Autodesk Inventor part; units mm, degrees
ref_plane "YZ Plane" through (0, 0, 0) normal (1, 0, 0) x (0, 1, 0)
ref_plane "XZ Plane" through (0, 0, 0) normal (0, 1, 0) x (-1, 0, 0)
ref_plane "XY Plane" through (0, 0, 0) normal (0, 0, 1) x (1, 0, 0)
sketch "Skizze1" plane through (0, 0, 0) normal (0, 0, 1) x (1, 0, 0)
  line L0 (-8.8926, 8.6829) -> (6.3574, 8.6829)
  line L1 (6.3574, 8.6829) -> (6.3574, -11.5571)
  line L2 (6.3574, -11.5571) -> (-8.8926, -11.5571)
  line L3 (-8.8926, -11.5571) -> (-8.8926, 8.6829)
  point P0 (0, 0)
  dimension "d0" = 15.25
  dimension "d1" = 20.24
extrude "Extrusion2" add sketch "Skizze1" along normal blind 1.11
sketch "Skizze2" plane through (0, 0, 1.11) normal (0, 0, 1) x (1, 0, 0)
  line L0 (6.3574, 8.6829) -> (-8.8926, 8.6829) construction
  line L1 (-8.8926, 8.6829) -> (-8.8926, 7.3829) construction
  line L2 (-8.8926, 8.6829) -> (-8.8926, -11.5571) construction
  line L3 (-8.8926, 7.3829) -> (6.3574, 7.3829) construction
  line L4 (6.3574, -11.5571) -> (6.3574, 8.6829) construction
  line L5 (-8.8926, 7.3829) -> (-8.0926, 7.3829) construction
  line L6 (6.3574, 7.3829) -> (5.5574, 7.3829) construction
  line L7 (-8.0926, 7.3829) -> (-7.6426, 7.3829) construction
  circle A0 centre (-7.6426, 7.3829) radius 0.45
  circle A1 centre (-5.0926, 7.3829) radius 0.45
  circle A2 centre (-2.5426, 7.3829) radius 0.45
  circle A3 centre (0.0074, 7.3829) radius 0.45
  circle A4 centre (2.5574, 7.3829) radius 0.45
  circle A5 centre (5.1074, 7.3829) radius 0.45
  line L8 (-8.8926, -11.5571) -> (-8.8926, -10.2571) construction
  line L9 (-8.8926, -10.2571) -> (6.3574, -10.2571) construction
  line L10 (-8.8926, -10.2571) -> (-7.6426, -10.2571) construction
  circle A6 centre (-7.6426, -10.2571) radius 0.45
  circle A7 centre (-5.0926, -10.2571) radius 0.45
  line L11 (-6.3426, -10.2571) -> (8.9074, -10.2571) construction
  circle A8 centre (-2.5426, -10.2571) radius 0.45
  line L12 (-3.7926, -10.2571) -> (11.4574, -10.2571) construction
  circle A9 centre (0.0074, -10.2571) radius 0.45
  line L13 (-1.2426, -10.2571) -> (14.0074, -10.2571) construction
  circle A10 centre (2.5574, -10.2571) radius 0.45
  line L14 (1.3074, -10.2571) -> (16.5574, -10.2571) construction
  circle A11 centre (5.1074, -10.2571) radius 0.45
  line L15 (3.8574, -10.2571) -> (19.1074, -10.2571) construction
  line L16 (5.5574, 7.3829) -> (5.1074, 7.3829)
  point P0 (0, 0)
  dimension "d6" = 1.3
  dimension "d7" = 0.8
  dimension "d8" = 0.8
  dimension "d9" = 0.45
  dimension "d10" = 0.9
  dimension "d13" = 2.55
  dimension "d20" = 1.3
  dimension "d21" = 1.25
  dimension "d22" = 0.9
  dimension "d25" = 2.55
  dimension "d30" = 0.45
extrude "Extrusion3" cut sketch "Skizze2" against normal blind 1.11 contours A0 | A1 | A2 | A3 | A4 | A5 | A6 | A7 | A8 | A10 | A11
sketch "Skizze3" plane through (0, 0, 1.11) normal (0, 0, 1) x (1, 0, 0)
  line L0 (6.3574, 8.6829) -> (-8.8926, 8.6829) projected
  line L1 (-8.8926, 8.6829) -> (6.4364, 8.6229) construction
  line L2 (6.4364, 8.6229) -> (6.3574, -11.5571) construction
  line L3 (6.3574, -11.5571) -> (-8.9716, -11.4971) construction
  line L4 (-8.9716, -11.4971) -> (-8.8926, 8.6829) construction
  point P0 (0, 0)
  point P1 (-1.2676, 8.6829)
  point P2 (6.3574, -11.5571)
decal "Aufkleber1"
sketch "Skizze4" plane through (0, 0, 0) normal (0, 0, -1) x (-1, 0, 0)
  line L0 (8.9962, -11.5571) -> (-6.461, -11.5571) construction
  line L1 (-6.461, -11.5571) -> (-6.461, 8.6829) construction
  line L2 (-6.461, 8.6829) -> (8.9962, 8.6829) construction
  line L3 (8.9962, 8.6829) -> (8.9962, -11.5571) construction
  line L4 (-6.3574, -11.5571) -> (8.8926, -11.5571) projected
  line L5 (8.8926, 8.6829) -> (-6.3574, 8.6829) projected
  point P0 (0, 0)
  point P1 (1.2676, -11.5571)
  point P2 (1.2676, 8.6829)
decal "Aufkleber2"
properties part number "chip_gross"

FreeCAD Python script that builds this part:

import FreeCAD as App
import Part
import Sketcher

V = App.Vector
Q = App.Units.Quantity

doc = App.newDocument("Part")
params = doc.addObject("Spreadsheet::Sheet", "Params")
for row, (alias, value) in enumerate([
    ("sketch1_width", "15.25 mm"),
    ("sketch1_height", "20.24 mm"),
    ("pad1_length", "1.11 mm"),
    ("sketch2_diameter", "0.9 mm"),
    ("pocket1_length", "1.11 mm"),
], start=1):
    params.set(f"A{row}", alias)
    params.set(f"B{row}", "=" + value)
    params.setAlias(f"B{row}", alias)

body = doc.addObject("PartDesign::Body", "Body")

sketch1 = body.newObject("Sketcher::SketchObject", "Sketch")
sketch1.AttachmentSupport = (doc.getObject("XY_Plane"), [""])
sketch1.MapMode = "FlatFace"
sketch1.addGeometry(Part.LineSegment(V(6, 9, 0), V(-9, 9, 0)), False)
sketch1.addGeometry(Part.LineSegment(V(-9, 9, 0), V(-9, -12, 0)), False)
sketch1.addGeometry(Part.LineSegment(V(-9, -12, 0), V(6, -12, 0)), False)
sketch1.addGeometry(Part.LineSegment(V(6, -12, 0), V(6, 9, 0)), False)
sketch1.addConstraint(Sketcher.Constraint("Coincident", 0, 2, 1, 1))
sketch1.addConstraint(Sketcher.Constraint("Coincident", 1, 2, 2, 1))
sketch1.addConstraint(Sketcher.Constraint("Coincident", 2, 2, 3, 1))
sketch1.addConstraint(Sketcher.Constraint("Coincident", 3, 2, 0, 1))
sketch1.addConstraint(Sketcher.Constraint("Horizontal", 0))
sketch1.addConstraint(Sketcher.Constraint("Vertical", 1))
sketch1.addConstraint(Sketcher.Constraint("Horizontal", 2))
sketch1.addConstraint(Sketcher.Constraint("Vertical", 3))
sketch1.addConstraint(Sketcher.Constraint("DistanceX", 0, 2, 0, 1, Q("15.25 mm")))
sketch1.addConstraint(Sketcher.Constraint("DistanceY", 1, 2, 1, 1, Q("20.24 mm")))
sketch1.addConstraint(Sketcher.Constraint("DistanceY", -1, 1, 0, 2, Q("8.683 mm")))
sketch1.addConstraint(Sketcher.Constraint("DistanceX", 0, 2, -1, 1, Q("8.8926 mm")))
sketch1.setExpression("Constraints[8]", "Params.sketch1_width")
sketch1.setExpression("Constraints[9]", "Params.sketch1_height")
pad1 = body.newObject("PartDesign::Pad", "Pad")
pad1.Profile = sketch1
pad1.setExpression("Length", "Params.pad1_length")

sketch2 = body.newObject("Sketcher::SketchObject", "Sketch001")
sketch2.AttachmentSupport = (doc.getObject("XY_Plane"), [""])
sketch2.MapMode = "FlatFace"
sketch2.AttachmentOffset = App.Placement(V(0, 0, 1.11), App.Rotation())
sketch2.addGeometry(Part.Circle(V(-7.64, 7.38, 0), V(0, 0, 1), 0.45), False)
sketch2.addGeometry(Part.Circle(V(-5.09, 7.38, 0), V(0, 0, 1), 0.45), False)
sketch2.addGeometry(Part.Circle(V(-2.54, 7.38, 0), V(0, 0, 1), 0.45), False)
sketch2.addGeometry(Part.Circle(V(0.01, 7.38, 0), V(0, 0, 1), 0.45), False)
sketch2.addGeometry(Part.Circle(V(2.56, 7.38, 0), V(0, 0, 1), 0.45), False)
sketch2.addGeometry(Part.Circle(V(5.11, 7.38, 0), V(0, 0, 1), 0.45), False)
sketch2.addGeometry(Part.Circle(V(-7.64, -10.26, 0), V(0, 0, 1), 0.45), False)
sketch2.addGeometry(Part.Circle(V(-5.09, -10.26, 0), V(0, 0, 1), 0.45), False)
sketch2.addGeometry(Part.Circle(V(-2.54, -10.26, 0), V(0, 0, 1), 0.45), False)
sketch2.addGeometry(Part.Circle(V(2.56, -10.26, 0), V(0, 0, 1), 0.45), False)
sketch2.addGeometry(Part.Circle(V(5.11, -10.26, 0), V(0, 0, 1), 0.45), False)
sketch2.addConstraint(Sketcher.Constraint("Equal", 0, 1))
sketch2.addConstraint(Sketcher.Constraint("Equal", 1, 2))
sketch2.addConstraint(Sketcher.Constraint("Equal", 2, 3))
sketch2.addConstraint(Sketcher.Constraint("Equal", 3, 4))
sketch2.addConstraint(Sketcher.Constraint("Equal", 4, 5))
sketch2.addConstraint(Sketcher.Constraint("Equal", 5, 6))
sketch2.addConstraint(Sketcher.Constraint("Equal", 6, 7))
sketch2.addConstraint(Sketcher.Constraint("Equal", 7, 8))
sketch2.addConstraint(Sketcher.Constraint("Equal", 8, 9))
sketch2.addConstraint(Sketcher.Constraint("Equal", 9, 10))
sketch2.addConstraint(Sketcher.Constraint("Horizontal", 0, 3, 1, 3))
sketch2.addConstraint(Sketcher.Constraint("Horizontal", 1, 3, 2, 3))
sketch2.addConstraint(Sketcher.Constraint("Horizontal", 2, 3, 3, 3))
sketch2.addConstraint(Sketcher.Constraint("Horizontal", 3, 3, 4, 3))
sketch2.addConstraint(Sketcher.Constraint("Horizontal", 4, 3, 5, 3))
sketch2.addConstraint(Sketcher.Constraint("Horizontal", 6, 3, 7, 3))
sketch2.addConstraint(Sketcher.Constraint("Horizontal", 7, 3, 8, 3))
sketch2.addConstraint(Sketcher.Constraint("Horizontal", 8, 3, 9, 3))
sketch2.addConstraint(Sketcher.Constraint("Horizontal", 9, 3, 10, 3))
sketch2.addConstraint(Sketcher.Constraint("Vertical", 0, 3, 6, 3))
sketch2.addConstraint(Sketcher.Constraint("Vertical", 1, 3, 7, 3))
sketch2.addConstraint(Sketcher.Constraint("Vertical", 2, 3, 8, 3))
sketch2.addConstraint(Sketcher.Constraint("Vertical", 4, 3, 9, 3))
sketch2.addConstraint(Sketcher.Constraint("Vertical", 5, 3, 10, 3))
sketch2.addConstraint(Sketcher.Constraint("Diameter", 0, Q("0.9 mm")))
sketch2.addConstraint(Sketcher.Constraint("DistanceX", 0, 3, 1, 3, Q("2.55 mm")))
sketch2.addConstraint(Sketcher.Constraint("DistanceX", 1, 3, 2, 3, Q("2.55 mm")))
sketch2.addConstraint(Sketcher.Constraint("DistanceX", 2, 3, 3, 3, Q("2.55 mm")))
sketch2.addConstraint(Sketcher.Constraint("DistanceX", 3, 3, 4, 3, Q("2.55 mm")))
sketch2.addConstraint(Sketcher.Constraint("DistanceX", 4, 3, 5, 3, Q("2.55 mm")))
sketch2.addConstraint(Sketcher.Constraint("DistanceY", 6, 3, 0, 3, Q("17.64 mm")))
sketch2.addConstraint(Sketcher.Constraint("DistanceY", -1, 1, 0, 3, Q("7.383 mm")))
sketch2.addConstraint(Sketcher.Constraint("DistanceX", 0, 3, -1, 1, Q("7.6426 mm")))
sketch2.setExpression("Constraints[24]", "Params.sketch2_diameter")
pocket1 = body.newObject("PartDesign::Pocket", "Pocket")
pocket1.Profile = sketch2
pocket1.setExpression("Length", "Params.pocket1_length")

doc.recompute()
